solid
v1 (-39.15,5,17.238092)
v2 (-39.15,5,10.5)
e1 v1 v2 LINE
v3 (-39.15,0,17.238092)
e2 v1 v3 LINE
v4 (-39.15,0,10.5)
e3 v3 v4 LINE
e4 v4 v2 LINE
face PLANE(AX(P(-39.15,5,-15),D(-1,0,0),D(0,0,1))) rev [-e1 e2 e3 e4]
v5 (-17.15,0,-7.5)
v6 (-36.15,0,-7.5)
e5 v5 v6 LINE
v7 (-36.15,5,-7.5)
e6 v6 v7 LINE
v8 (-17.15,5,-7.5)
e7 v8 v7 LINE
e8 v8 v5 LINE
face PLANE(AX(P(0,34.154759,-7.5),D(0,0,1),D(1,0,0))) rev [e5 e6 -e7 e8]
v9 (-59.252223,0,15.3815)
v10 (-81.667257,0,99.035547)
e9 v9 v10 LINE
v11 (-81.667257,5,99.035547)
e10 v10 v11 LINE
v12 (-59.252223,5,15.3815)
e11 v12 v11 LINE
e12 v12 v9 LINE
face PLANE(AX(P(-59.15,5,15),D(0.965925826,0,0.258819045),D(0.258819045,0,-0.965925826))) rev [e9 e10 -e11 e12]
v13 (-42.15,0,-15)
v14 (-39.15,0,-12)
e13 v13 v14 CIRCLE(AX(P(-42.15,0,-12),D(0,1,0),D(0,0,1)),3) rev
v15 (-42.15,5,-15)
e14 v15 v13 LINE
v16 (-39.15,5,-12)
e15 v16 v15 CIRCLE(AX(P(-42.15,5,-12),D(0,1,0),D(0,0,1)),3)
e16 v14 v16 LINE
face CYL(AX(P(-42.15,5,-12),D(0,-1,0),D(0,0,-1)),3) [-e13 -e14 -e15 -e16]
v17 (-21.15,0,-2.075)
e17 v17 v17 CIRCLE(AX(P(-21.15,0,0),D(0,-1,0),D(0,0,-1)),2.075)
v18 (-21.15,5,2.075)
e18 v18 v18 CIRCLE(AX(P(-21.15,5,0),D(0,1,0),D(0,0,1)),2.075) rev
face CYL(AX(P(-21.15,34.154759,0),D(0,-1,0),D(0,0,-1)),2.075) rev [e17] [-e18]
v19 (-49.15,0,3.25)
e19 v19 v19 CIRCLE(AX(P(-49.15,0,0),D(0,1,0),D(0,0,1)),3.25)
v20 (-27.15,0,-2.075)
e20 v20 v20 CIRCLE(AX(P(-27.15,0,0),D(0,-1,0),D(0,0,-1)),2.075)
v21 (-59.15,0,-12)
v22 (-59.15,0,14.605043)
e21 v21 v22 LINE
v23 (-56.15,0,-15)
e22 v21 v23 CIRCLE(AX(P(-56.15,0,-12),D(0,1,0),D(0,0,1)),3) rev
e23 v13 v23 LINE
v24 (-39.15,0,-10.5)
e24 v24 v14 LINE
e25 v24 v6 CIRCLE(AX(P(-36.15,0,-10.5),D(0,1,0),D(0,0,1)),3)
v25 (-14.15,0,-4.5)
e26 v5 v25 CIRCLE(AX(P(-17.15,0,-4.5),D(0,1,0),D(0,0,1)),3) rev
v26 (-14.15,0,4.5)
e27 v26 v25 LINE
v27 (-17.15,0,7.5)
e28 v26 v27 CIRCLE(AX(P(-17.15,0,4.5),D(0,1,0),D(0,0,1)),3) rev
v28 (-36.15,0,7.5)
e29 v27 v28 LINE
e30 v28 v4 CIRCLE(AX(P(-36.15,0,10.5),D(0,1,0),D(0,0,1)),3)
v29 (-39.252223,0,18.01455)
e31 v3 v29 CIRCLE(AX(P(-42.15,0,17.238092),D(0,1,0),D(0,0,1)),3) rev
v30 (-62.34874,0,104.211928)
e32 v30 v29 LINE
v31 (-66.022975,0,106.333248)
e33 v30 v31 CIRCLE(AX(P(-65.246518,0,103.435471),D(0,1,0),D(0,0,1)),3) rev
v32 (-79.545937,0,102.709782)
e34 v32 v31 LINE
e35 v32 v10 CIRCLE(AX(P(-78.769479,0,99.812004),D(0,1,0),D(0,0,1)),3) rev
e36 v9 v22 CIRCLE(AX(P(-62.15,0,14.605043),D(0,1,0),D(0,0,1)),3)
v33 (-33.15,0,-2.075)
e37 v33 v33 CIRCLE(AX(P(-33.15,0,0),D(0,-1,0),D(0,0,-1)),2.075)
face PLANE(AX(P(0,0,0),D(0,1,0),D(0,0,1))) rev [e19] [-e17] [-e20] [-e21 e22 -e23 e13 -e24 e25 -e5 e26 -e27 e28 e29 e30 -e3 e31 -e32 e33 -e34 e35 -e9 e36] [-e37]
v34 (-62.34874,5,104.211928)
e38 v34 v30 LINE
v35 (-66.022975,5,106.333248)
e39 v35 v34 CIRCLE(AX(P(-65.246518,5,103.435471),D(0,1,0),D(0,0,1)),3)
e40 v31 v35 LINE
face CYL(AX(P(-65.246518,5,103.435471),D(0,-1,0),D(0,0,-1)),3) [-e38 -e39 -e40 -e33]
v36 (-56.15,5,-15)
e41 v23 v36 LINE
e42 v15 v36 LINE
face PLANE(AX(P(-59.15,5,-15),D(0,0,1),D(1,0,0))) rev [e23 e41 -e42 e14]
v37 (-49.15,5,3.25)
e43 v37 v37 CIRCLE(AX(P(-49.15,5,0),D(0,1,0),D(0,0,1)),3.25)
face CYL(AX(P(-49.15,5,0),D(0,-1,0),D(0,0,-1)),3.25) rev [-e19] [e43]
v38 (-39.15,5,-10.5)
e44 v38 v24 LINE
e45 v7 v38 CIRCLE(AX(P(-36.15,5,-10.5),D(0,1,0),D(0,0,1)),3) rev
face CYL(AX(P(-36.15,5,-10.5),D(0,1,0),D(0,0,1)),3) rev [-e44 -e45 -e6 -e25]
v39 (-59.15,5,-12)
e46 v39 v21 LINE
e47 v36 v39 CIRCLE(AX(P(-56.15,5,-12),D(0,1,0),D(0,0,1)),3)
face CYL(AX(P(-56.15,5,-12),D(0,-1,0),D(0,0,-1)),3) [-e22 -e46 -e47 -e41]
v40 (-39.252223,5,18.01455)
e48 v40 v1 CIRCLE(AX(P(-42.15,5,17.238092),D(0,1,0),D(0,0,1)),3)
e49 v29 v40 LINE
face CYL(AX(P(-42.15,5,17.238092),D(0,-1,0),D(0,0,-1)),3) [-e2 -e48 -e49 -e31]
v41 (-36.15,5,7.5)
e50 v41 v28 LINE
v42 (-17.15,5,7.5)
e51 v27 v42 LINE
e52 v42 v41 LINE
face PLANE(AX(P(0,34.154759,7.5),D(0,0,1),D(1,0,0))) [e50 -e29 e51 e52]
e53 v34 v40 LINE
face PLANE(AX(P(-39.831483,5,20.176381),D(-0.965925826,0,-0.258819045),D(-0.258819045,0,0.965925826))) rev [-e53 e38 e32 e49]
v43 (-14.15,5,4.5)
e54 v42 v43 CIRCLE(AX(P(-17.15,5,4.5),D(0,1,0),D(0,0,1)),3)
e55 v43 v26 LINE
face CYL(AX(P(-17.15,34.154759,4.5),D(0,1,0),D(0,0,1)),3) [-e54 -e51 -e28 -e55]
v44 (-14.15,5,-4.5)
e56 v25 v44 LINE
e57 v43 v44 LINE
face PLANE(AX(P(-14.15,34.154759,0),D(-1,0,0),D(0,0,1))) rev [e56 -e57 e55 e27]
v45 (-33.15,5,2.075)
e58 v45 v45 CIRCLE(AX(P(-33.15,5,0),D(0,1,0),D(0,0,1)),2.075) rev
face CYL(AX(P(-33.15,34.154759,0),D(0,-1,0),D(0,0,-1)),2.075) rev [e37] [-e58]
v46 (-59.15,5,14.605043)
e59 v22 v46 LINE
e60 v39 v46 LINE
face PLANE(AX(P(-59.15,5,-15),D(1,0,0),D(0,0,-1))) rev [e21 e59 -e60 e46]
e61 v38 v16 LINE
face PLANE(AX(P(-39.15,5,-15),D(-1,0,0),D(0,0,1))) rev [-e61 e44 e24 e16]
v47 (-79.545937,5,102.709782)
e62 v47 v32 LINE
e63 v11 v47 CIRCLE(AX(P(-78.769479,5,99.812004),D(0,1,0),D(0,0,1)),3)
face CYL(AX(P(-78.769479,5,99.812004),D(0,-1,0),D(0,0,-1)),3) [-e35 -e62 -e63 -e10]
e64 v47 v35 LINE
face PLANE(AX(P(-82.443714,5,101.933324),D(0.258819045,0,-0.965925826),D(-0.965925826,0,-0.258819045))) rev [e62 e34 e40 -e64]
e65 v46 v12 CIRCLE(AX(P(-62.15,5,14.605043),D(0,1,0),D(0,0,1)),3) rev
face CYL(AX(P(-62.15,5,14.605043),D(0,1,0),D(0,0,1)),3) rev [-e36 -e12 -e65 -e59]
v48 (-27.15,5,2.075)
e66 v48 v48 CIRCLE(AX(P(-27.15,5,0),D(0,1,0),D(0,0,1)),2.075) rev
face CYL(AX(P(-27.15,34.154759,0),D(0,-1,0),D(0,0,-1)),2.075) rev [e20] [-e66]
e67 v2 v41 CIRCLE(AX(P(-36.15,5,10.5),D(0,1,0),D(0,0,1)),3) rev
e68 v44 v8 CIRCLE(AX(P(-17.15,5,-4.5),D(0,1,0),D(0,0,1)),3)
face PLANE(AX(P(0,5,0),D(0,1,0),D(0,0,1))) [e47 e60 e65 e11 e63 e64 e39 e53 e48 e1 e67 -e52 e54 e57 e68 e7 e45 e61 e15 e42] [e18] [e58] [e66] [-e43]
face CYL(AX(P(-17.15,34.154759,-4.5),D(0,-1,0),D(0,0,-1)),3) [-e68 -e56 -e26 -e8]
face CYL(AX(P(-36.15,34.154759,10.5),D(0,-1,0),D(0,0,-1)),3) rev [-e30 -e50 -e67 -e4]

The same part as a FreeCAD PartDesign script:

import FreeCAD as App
import Part
import Sketcher
Q = App.Units.Quantity


def edges_at(feature, points):
    """Names of the edges that pass closest to the given points."""
    edges = feature.Shape.Edges
    near = lambda p: min(range(len(edges)), key=lambda i: edges[i].distToShape(Part.Vertex(*p))[0])
    return sorted({f"Edge{near(p) + 1}" for p in points})


def add_polygon(sketch, points):
    """Adds a closed chain of lines whose ends are joined by coincident constraints."""
    first, n = sketch.GeometryCount, len(points)
    for a, b in zip(points, points[1:] + points[:1]):
        sketch.addGeometry(Part.LineSegment(App.Vector(*a, 0), App.Vector(*b, 0)), False)
    for i in range(n):
        sketch.addConstraint(Sketcher.Constraint("Coincident", first + i, 2, first + (i + 1) % n, 1))

doc = App.newDocument("Part")
body = doc.addObject("PartDesign::Body", "Body")

# Sketch on XZ plane
sketch1 = doc.addObject("Sketcher::SketchObject", "Sketch")
body.addObject(sketch1)
sketch1.AttachmentSupport = (doc.XZ_Plane, [""])
sketch1.MapMode = "FlatFace"
add_polygon(sketch1, [(-59.1, 15), (-82.4, 101.9), (-63.1, 107.1), (-39.8, 20.2), (-39.1, 17.6), (-39.1, -15), (-59.1, -15)])  # lines 0-6
sketch1.addGeometry(Part.Circle(App.Vector(-49.1, 0, 0), App.Vector(0, 0, 1), 3.2), False)  # 7
sketch1.addConstraint(Sketcher.Constraint("Vertical", 4))
sketch1.addConstraint(Sketcher.Constraint("Horizontal", 5))
sketch1.addConstraint(Sketcher.Constraint("Vertical", 6))
sketch1.addConstraint(Sketcher.Constraint("PointOnObject", 7, 3, -1))
sketch1.addConstraint(Sketcher.Constraint("Perpendicular", 0, 1))
sketch1.addConstraint(Sketcher.Constraint("Perpendicular", 1, 2))
sketch1.addConstraint(Sketcher.Constraint("Parallel", 2, 3))
sketch1.addConstraint(Sketcher.Constraint("Equal", 0, 2))
sketch1.addConstraint(Sketcher.Constraint("Diameter", 7, 6.5))
sketch1.addConstraint(Sketcher.Constraint("DistanceX", 5, 2, 5, 1, 20.0))
sketch1.addConstraint(Sketcher.Constraint("DistanceY", 6, 1, 6, 2, 30.0))
sketch1.addConstraint(Sketcher.Constraint("Angle", 0, Q("105 deg")))
sketch1.addConstraint(Sketcher.Constraint("Distance", 0, 90.0))
sketch1.addConstraint(Sketcher.Constraint("Distance", 1, 20.0))
sketch1.addConstraint(Sketcher.Constraint("DistanceY", 4, 2, -1, 1, 15.0))
sketch1.addConstraint(Sketcher.Constraint("DistanceX", 7, 3, 3, 2, 10.0))
sketch1.addConstraint(Sketcher.Constraint("DistanceX", 7, 3, -1, 1, 49.15))
pad1 = doc.addObject("PartDesign::Pad", "Pad")
body.addObject(pad1)
pad1.Profile = sketch1
pad1.Length = 5
pad1.Reversed = True

# Sketch on XZ plane
sketch2 = doc.addObject("Sketcher::SketchObject", "Sketch001")
body.addObject(sketch2)
sketch2.AttachmentSupport = (doc.XZ_Plane, [""])
sketch2.MapMode = "FlatFace"
add_polygon(sketch2, [(-14.2, -7.5), (-14.2, 7.5), (-39.1, 7.5), (-39.1, -7.5)])  # lines 0-3
sketch2.addGeometry(Part.Circle(App.Vector(-33.1, 0, 0), App.Vector(0, 0, 1), 2.1), False)  # 4
sketch2.addGeometry(Part.Circle(App.Vector(-27.1, 0, 0), App.Vector(0, 0, 1), 2.1), False)  # 5
sketch2.addGeometry(Part.Circle(App.Vector(-21.1, 0, 0), App.Vector(0, 0, 1), 2.1), False)  # 6
sketch2.addConstraint(Sketcher.Constraint("Vertical", 0))
sketch2.addConstraint(Sketcher.Constraint("Horizontal", 1))
sketch2.addConstraint(Sketcher.Constraint("Vertical", 2))
sketch2.addConstraint(Sketcher.Constraint("Horizontal", 3))
sketch2.addConstraint(Sketcher.Constraint("Equal", 4, 5))
sketch2.addConstraint(Sketcher.Constraint("Equal", 5, 6))
sketch2.addConstraint(Sketcher.Constraint("PointOnObject", 4, 3, -1))
sketch2.addConstraint(Sketcher.Constraint("PointOnObject", 5, 3, -1))
sketch2.addConstraint(Sketcher.Constraint("PointOnObject", 6, 3, -1))
sketch2.addConstraint(Sketcher.Constraint("Diameter", 4, 4.15))
sketch2.addConstraint(Sketcher.Constraint("DistanceX", 1, 2, 1, 1, 25.0))
sketch2.addConstraint(Sketcher.Constraint("DistanceY", 0, 1, 0, 2, 15.0))
sketch2.addConstraint(Sketcher.Constraint("DistanceX", 4, 3, 5, 3, 6.0))
sketch2.addConstraint(Sketcher.Constraint("DistanceX", 5, 3, 6, 3, 6.0))
sketch2.addConstraint(Sketcher.Constraint("DistanceX", 6, 3, 0, 2, 7.0))
sketch2.addConstraint(Sketcher.Constraint("DistanceY", -1, 1, 0, 2, 7.5))
sketch2.addConstraint(Sketcher.Constraint("DistanceX", 4, 3, -1, 1, 33.15))
pad2 = doc.addObject("PartDesign::Pad", "Pad001")
body.addObject(pad2)
pad2.Profile = sketch2
pad2.Length = 5
pad2.Reversed = True
doc.recompute()

fillet = doc.addObject("PartDesign::Fillet", "Fillet")
body.addObject(fillet)
fillet.Base = (pad2, edges_at(pad2, [
    (-39.15, 2.5, 17.633),
    (-63.125, 2.5, 107.11),
    (-82.444, 2.5, 101.933),
    (-59.15, 2.5, 15),
    (-59.15, 2.5, -15),
    (-39.15, 2.5, -15),
    (-14.15, 2.5, -7.5),
    (-39.15, 2.5, -7.5),
    (-39.15, 2.5, 7.5),
    (-14.15, 2.5, 7.5),
]))
fillet.Radius = 3

doc.recompute()
